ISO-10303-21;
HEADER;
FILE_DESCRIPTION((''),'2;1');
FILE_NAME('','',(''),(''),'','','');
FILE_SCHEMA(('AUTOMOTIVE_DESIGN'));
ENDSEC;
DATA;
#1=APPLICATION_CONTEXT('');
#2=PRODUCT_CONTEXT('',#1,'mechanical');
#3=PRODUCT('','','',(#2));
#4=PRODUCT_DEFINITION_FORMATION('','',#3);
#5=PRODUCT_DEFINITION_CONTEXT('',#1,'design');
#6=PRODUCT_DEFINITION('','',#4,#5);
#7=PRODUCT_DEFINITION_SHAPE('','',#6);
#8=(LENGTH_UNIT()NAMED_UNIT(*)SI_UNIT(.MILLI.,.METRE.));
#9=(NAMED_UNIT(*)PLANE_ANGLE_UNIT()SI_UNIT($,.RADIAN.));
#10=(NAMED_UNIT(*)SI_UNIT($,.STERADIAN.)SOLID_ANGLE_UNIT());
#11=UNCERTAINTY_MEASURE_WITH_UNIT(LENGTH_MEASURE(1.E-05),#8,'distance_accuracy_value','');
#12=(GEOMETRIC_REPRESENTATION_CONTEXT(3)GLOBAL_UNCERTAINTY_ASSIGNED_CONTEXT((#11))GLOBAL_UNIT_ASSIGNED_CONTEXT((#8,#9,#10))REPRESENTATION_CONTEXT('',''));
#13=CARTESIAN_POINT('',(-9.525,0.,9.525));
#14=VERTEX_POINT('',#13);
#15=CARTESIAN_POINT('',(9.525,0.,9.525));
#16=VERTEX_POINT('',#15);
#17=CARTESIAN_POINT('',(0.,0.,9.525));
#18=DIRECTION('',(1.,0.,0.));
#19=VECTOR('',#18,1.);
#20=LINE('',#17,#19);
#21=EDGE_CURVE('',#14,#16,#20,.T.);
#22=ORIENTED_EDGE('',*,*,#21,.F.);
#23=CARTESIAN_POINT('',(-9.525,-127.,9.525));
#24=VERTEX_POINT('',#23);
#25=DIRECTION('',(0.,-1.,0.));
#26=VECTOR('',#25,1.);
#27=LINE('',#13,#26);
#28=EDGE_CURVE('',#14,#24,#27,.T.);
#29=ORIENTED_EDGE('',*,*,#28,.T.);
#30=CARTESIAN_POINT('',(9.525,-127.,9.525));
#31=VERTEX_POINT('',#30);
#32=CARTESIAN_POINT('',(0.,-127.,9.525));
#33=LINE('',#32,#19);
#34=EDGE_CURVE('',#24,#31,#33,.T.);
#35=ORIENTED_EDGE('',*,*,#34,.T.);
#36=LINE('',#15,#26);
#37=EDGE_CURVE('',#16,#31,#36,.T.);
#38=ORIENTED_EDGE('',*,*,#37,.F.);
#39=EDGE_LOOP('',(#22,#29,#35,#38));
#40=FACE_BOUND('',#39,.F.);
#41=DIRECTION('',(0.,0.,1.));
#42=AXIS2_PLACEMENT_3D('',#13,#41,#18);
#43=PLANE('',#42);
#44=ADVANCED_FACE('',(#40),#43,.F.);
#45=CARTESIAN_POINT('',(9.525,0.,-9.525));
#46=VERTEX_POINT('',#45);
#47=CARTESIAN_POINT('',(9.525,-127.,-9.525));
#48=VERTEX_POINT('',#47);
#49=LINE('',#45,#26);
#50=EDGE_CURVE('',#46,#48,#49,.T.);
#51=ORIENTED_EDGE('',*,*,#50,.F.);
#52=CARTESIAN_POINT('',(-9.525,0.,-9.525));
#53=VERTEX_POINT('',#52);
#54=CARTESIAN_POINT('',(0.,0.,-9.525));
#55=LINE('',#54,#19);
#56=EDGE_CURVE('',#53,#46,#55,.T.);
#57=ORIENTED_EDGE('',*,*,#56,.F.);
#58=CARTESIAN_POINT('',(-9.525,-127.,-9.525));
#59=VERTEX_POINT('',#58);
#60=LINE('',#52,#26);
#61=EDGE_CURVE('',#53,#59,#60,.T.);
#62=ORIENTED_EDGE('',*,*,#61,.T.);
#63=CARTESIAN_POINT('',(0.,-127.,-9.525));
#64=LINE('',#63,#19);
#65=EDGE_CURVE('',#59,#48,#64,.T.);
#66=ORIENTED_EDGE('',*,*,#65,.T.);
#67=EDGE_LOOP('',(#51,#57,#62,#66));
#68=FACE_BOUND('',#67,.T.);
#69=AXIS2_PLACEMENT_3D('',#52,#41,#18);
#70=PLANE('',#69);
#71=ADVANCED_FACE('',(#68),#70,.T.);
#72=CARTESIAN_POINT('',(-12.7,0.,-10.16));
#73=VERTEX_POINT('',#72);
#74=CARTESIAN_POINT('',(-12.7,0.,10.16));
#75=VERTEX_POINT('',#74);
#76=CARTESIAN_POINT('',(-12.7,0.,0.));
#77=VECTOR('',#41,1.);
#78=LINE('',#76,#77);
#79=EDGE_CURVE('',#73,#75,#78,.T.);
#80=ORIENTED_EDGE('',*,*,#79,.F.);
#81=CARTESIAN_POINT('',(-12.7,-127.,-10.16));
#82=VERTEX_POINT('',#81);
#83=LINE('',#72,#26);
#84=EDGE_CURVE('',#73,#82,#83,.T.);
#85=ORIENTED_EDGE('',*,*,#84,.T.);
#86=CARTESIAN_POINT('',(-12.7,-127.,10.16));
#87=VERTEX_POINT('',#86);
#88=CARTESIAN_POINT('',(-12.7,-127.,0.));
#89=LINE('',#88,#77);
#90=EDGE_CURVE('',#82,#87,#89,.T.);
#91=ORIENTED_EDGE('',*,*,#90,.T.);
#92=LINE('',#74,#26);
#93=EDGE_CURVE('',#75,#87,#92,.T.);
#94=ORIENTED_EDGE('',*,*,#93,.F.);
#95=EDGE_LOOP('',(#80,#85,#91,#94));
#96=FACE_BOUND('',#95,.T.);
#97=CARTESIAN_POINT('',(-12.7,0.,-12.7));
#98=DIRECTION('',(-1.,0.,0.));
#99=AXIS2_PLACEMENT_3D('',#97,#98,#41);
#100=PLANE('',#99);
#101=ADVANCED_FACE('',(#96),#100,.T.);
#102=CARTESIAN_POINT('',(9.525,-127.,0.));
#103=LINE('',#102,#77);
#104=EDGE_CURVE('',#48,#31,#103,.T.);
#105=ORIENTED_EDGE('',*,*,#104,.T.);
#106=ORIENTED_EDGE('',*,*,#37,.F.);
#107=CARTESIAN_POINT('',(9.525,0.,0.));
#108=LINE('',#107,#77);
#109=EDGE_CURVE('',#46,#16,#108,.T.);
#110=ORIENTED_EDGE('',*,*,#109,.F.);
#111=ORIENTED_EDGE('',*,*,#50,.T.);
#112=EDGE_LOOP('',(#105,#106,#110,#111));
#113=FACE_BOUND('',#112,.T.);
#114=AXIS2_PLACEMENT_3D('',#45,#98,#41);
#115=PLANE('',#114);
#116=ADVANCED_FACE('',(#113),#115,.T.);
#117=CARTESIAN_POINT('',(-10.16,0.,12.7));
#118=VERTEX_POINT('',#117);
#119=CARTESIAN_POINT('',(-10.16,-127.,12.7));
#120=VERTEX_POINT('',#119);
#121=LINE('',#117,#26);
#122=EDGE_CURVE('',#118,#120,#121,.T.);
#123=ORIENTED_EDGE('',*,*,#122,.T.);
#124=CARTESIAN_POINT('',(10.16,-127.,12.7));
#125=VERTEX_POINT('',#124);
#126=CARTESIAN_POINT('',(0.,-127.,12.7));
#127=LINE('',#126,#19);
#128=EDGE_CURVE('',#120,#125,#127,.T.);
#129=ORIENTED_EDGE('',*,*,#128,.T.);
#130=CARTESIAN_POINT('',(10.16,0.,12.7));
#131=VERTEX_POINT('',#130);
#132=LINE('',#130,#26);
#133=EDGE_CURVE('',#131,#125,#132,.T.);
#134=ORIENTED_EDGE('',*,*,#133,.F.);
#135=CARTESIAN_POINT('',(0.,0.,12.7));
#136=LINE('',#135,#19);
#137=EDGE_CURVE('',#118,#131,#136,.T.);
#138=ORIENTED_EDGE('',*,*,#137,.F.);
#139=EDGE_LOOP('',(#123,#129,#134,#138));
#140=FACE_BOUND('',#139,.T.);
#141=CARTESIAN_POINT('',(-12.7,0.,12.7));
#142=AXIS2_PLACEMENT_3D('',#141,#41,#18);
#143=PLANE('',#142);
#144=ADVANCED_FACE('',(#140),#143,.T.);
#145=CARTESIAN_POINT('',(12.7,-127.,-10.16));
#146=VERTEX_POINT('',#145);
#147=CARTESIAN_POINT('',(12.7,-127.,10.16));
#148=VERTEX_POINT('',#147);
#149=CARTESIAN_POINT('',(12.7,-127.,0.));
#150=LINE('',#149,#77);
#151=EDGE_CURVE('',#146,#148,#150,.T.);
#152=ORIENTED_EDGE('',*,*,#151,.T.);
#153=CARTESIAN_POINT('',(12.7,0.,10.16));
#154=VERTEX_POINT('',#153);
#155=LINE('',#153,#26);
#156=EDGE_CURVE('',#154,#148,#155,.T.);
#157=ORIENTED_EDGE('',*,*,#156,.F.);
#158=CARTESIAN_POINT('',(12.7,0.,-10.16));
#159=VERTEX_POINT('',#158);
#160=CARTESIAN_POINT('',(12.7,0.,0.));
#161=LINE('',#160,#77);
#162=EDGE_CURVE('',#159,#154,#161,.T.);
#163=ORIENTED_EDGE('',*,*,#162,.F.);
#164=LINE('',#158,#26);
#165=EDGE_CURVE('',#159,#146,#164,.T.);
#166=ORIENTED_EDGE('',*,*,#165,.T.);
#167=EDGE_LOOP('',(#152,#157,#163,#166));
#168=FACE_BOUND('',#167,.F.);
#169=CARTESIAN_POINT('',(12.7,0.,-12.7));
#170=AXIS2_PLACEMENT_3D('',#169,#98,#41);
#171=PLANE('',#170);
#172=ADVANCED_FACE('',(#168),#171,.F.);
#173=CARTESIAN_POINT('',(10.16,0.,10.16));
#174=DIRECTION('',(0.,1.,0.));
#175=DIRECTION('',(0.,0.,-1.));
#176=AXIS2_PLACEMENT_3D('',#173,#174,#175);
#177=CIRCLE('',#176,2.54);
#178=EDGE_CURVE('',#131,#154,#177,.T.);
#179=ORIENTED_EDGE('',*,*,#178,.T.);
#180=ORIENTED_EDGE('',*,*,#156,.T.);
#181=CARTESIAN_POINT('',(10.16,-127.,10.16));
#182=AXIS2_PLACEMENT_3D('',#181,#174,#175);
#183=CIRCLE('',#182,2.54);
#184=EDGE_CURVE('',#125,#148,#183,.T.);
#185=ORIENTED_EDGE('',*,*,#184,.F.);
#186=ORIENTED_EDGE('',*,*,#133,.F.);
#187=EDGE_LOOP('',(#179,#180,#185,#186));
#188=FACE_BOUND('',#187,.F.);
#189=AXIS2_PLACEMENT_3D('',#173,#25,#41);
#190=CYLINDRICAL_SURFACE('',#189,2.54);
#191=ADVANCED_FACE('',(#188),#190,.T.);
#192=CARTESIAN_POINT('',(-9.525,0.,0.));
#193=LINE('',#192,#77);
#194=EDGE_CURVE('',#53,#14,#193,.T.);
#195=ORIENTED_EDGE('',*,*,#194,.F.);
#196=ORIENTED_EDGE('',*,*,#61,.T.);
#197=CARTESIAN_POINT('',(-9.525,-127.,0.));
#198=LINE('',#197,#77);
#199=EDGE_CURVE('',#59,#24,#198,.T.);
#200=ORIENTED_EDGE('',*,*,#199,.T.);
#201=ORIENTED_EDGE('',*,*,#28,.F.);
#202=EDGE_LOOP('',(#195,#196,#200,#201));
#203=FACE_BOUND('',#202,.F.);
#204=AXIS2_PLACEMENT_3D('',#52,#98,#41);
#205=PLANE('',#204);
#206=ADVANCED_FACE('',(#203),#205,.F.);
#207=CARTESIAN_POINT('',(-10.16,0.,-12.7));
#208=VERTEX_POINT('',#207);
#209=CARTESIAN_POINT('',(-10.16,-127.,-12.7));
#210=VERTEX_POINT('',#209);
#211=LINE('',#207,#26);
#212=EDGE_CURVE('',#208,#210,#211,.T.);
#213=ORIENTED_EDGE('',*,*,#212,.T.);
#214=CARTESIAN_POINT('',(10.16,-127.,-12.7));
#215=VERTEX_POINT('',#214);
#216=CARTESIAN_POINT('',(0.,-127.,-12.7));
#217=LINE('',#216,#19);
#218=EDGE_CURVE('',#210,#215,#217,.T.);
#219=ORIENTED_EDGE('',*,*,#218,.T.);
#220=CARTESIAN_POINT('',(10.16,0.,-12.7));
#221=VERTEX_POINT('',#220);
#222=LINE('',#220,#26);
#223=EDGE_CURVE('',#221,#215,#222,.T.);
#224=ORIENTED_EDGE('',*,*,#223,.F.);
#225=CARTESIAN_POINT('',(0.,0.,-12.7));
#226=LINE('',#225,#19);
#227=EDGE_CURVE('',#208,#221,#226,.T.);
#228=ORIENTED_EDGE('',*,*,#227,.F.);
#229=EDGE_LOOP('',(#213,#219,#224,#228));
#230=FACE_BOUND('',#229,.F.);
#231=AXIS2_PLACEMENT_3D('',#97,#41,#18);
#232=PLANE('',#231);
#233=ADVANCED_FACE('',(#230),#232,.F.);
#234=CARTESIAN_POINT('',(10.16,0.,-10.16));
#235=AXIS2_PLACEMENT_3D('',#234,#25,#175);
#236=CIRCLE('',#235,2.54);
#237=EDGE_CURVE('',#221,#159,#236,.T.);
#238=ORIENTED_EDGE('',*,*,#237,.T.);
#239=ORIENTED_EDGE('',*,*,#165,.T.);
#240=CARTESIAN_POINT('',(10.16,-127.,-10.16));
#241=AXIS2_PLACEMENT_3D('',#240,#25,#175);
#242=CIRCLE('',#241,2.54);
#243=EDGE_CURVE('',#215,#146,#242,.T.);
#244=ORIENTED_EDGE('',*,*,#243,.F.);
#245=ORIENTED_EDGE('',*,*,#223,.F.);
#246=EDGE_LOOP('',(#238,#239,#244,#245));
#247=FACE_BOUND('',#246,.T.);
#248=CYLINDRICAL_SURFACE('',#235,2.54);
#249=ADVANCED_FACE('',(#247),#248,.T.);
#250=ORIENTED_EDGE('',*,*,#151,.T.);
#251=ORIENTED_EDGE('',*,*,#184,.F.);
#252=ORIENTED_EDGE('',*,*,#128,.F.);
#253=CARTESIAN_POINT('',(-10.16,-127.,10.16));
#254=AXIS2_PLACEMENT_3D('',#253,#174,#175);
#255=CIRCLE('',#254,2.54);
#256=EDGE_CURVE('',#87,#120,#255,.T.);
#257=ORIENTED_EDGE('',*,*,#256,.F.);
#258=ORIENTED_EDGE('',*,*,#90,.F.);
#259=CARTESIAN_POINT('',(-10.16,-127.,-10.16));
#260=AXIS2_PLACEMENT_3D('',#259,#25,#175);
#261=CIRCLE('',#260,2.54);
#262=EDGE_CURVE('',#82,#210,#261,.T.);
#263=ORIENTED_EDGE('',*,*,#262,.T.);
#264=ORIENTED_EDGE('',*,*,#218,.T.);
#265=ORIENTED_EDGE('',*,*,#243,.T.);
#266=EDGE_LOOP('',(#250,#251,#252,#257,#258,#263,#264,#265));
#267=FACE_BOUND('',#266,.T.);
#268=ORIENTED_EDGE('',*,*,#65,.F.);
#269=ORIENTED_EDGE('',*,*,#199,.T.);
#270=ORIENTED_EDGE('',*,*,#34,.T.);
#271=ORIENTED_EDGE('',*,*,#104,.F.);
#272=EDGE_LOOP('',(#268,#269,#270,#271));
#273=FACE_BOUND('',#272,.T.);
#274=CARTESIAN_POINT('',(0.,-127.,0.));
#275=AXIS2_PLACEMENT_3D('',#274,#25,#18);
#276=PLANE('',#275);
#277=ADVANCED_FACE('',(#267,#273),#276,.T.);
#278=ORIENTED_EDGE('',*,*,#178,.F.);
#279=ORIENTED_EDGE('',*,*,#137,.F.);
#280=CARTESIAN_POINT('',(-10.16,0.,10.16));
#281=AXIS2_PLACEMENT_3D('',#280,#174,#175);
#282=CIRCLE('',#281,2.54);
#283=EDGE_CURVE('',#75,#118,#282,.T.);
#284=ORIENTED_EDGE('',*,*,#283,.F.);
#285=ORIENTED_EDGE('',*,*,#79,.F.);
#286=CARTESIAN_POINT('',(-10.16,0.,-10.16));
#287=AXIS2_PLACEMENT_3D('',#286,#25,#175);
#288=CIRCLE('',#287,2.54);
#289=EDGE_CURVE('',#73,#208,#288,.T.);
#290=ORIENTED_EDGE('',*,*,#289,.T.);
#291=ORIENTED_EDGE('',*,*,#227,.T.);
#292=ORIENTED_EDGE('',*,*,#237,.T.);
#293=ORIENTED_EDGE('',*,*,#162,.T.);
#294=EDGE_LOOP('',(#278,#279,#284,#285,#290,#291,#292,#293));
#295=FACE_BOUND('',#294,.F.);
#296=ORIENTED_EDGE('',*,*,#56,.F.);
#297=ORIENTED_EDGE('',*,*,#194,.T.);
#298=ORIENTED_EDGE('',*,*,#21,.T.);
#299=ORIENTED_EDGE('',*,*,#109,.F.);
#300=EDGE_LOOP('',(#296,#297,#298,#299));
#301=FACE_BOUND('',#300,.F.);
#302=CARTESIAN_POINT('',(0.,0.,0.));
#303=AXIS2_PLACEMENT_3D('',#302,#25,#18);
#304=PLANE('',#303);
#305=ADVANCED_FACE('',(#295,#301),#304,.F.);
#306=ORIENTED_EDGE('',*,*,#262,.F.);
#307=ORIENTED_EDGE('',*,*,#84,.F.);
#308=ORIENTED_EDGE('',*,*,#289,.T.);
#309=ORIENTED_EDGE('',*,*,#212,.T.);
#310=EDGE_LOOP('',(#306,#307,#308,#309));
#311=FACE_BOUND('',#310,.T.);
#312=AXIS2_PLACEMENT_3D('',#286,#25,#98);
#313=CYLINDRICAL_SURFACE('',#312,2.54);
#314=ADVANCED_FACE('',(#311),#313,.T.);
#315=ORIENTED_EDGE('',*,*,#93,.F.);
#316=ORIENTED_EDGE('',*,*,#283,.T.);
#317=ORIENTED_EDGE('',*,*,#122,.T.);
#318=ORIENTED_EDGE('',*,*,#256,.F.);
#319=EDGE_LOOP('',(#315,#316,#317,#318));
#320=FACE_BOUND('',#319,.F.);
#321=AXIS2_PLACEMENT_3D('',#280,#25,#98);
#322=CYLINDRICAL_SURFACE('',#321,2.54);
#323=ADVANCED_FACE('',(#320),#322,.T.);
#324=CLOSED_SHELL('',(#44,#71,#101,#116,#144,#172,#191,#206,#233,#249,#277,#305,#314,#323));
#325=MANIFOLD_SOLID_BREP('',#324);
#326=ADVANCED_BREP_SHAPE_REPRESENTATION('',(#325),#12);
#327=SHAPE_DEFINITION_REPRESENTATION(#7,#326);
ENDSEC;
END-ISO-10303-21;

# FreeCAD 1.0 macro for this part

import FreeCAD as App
import Part
import Sketcher
Q = App.Units.Quantity


def edges_at(feature, points):
    """Names of the edges that pass closest to the given points."""
    edges = feature.Shape.Edges
    near = lambda p: min(range(len(edges)), key=lambda i: edges[i].distToShape(Part.Vertex(*p))[0])
    return sorted({f"Edge{near(p) + 1}" for p in points})


def add_polygon(sketch, points):
    """Adds a closed chain of lines whose ends are joined by coincident constraints."""
    first, n = sketch.GeometryCount, len(points)
    for a, b in zip(points, points[1:] + points[:1]):
        sketch.addGeometry(Part.LineSegment(App.Vector(*a, 0), App.Vector(*b, 0)), False)
    for i in range(n):
        sketch.addConstraint(Sketcher.Constraint("Coincident", first + i, 2, first + (i + 1) % n, 1))

doc = App.newDocument("Part")
body = doc.addObject("PartDesign::Body", "Body")

# Sketch on XZ plane
sketch1 = body.newObject("Sketcher::SketchObject", "Sketch")
sketch1.AttachmentSupport = (doc.getObject("XZ_Plane"), [""])
sketch1.MapMode = "FlatFace"
add_polygon(sketch1, [(-13, 13), (-13, -13), (13, -13), (13, 13)])  # lines 0-3
add_polygon(sketch1, [(10, -10), (-10, -10), (-10, 10), (10, 10)])  # lines 4-7
sketch1.addConstraint(Sketcher.Constraint("Vertical", 0))
sketch1.addConstraint(Sketcher.Constraint("Horizontal", 1))
sketch1.addConstraint(Sketcher.Constraint("Vertical", 2))
sketch1.addConstraint(Sketcher.Constraint("Horizontal", 3))
sketch1.addConstraint(Sketcher.Constraint("Horizontal", 4))
sketch1.addConstraint(Sketcher.Constraint("Vertical", 5))
sketch1.addConstraint(Sketcher.Constraint("Horizontal", 6))
sketch1.addConstraint(Sketcher.Constraint("Vertical", 7))
sketch1.addConstraint(Sketcher.Constraint("Symmetric", 0, 2, 2, 2, -1, 1))
sketch1.addConstraint(Sketcher.Constraint("Symmetric", 4, 2, 6, 2, -1, 1))
sketch1.addConstraint(Sketcher.Constraint("Equal", 3, 0))
sketch1.addConstraint(Sketcher.Constraint("Equal", 6, 5))
sketch1.addConstraint(Sketcher.Constraint("DistanceX", 1, 1, 1, 2, Q("1 in")))
sketch1.addConstraint(Sketcher.Constraint("DistanceX", 4, 2, 4, 1, Q("0.75 in")))
pad1 = body.newObject("PartDesign::Pad", "Pad")
pad1.Profile = sketch1
pad1.Length = Q("5 in")
doc.recompute()

fillet = body.newObject("PartDesign::Fillet", "Fillet")
fillet.Base = (pad1, edges_at(pad1, [
    (-12.7, -63.5, -12.7),
    (12.7, -63.5, -12.7),
    (-12.7, -63.5, 12.7),
    (12.7, -63.5, 12.7),
]))
fillet.Radius = Q("0.1 in")

doc.recompute()
